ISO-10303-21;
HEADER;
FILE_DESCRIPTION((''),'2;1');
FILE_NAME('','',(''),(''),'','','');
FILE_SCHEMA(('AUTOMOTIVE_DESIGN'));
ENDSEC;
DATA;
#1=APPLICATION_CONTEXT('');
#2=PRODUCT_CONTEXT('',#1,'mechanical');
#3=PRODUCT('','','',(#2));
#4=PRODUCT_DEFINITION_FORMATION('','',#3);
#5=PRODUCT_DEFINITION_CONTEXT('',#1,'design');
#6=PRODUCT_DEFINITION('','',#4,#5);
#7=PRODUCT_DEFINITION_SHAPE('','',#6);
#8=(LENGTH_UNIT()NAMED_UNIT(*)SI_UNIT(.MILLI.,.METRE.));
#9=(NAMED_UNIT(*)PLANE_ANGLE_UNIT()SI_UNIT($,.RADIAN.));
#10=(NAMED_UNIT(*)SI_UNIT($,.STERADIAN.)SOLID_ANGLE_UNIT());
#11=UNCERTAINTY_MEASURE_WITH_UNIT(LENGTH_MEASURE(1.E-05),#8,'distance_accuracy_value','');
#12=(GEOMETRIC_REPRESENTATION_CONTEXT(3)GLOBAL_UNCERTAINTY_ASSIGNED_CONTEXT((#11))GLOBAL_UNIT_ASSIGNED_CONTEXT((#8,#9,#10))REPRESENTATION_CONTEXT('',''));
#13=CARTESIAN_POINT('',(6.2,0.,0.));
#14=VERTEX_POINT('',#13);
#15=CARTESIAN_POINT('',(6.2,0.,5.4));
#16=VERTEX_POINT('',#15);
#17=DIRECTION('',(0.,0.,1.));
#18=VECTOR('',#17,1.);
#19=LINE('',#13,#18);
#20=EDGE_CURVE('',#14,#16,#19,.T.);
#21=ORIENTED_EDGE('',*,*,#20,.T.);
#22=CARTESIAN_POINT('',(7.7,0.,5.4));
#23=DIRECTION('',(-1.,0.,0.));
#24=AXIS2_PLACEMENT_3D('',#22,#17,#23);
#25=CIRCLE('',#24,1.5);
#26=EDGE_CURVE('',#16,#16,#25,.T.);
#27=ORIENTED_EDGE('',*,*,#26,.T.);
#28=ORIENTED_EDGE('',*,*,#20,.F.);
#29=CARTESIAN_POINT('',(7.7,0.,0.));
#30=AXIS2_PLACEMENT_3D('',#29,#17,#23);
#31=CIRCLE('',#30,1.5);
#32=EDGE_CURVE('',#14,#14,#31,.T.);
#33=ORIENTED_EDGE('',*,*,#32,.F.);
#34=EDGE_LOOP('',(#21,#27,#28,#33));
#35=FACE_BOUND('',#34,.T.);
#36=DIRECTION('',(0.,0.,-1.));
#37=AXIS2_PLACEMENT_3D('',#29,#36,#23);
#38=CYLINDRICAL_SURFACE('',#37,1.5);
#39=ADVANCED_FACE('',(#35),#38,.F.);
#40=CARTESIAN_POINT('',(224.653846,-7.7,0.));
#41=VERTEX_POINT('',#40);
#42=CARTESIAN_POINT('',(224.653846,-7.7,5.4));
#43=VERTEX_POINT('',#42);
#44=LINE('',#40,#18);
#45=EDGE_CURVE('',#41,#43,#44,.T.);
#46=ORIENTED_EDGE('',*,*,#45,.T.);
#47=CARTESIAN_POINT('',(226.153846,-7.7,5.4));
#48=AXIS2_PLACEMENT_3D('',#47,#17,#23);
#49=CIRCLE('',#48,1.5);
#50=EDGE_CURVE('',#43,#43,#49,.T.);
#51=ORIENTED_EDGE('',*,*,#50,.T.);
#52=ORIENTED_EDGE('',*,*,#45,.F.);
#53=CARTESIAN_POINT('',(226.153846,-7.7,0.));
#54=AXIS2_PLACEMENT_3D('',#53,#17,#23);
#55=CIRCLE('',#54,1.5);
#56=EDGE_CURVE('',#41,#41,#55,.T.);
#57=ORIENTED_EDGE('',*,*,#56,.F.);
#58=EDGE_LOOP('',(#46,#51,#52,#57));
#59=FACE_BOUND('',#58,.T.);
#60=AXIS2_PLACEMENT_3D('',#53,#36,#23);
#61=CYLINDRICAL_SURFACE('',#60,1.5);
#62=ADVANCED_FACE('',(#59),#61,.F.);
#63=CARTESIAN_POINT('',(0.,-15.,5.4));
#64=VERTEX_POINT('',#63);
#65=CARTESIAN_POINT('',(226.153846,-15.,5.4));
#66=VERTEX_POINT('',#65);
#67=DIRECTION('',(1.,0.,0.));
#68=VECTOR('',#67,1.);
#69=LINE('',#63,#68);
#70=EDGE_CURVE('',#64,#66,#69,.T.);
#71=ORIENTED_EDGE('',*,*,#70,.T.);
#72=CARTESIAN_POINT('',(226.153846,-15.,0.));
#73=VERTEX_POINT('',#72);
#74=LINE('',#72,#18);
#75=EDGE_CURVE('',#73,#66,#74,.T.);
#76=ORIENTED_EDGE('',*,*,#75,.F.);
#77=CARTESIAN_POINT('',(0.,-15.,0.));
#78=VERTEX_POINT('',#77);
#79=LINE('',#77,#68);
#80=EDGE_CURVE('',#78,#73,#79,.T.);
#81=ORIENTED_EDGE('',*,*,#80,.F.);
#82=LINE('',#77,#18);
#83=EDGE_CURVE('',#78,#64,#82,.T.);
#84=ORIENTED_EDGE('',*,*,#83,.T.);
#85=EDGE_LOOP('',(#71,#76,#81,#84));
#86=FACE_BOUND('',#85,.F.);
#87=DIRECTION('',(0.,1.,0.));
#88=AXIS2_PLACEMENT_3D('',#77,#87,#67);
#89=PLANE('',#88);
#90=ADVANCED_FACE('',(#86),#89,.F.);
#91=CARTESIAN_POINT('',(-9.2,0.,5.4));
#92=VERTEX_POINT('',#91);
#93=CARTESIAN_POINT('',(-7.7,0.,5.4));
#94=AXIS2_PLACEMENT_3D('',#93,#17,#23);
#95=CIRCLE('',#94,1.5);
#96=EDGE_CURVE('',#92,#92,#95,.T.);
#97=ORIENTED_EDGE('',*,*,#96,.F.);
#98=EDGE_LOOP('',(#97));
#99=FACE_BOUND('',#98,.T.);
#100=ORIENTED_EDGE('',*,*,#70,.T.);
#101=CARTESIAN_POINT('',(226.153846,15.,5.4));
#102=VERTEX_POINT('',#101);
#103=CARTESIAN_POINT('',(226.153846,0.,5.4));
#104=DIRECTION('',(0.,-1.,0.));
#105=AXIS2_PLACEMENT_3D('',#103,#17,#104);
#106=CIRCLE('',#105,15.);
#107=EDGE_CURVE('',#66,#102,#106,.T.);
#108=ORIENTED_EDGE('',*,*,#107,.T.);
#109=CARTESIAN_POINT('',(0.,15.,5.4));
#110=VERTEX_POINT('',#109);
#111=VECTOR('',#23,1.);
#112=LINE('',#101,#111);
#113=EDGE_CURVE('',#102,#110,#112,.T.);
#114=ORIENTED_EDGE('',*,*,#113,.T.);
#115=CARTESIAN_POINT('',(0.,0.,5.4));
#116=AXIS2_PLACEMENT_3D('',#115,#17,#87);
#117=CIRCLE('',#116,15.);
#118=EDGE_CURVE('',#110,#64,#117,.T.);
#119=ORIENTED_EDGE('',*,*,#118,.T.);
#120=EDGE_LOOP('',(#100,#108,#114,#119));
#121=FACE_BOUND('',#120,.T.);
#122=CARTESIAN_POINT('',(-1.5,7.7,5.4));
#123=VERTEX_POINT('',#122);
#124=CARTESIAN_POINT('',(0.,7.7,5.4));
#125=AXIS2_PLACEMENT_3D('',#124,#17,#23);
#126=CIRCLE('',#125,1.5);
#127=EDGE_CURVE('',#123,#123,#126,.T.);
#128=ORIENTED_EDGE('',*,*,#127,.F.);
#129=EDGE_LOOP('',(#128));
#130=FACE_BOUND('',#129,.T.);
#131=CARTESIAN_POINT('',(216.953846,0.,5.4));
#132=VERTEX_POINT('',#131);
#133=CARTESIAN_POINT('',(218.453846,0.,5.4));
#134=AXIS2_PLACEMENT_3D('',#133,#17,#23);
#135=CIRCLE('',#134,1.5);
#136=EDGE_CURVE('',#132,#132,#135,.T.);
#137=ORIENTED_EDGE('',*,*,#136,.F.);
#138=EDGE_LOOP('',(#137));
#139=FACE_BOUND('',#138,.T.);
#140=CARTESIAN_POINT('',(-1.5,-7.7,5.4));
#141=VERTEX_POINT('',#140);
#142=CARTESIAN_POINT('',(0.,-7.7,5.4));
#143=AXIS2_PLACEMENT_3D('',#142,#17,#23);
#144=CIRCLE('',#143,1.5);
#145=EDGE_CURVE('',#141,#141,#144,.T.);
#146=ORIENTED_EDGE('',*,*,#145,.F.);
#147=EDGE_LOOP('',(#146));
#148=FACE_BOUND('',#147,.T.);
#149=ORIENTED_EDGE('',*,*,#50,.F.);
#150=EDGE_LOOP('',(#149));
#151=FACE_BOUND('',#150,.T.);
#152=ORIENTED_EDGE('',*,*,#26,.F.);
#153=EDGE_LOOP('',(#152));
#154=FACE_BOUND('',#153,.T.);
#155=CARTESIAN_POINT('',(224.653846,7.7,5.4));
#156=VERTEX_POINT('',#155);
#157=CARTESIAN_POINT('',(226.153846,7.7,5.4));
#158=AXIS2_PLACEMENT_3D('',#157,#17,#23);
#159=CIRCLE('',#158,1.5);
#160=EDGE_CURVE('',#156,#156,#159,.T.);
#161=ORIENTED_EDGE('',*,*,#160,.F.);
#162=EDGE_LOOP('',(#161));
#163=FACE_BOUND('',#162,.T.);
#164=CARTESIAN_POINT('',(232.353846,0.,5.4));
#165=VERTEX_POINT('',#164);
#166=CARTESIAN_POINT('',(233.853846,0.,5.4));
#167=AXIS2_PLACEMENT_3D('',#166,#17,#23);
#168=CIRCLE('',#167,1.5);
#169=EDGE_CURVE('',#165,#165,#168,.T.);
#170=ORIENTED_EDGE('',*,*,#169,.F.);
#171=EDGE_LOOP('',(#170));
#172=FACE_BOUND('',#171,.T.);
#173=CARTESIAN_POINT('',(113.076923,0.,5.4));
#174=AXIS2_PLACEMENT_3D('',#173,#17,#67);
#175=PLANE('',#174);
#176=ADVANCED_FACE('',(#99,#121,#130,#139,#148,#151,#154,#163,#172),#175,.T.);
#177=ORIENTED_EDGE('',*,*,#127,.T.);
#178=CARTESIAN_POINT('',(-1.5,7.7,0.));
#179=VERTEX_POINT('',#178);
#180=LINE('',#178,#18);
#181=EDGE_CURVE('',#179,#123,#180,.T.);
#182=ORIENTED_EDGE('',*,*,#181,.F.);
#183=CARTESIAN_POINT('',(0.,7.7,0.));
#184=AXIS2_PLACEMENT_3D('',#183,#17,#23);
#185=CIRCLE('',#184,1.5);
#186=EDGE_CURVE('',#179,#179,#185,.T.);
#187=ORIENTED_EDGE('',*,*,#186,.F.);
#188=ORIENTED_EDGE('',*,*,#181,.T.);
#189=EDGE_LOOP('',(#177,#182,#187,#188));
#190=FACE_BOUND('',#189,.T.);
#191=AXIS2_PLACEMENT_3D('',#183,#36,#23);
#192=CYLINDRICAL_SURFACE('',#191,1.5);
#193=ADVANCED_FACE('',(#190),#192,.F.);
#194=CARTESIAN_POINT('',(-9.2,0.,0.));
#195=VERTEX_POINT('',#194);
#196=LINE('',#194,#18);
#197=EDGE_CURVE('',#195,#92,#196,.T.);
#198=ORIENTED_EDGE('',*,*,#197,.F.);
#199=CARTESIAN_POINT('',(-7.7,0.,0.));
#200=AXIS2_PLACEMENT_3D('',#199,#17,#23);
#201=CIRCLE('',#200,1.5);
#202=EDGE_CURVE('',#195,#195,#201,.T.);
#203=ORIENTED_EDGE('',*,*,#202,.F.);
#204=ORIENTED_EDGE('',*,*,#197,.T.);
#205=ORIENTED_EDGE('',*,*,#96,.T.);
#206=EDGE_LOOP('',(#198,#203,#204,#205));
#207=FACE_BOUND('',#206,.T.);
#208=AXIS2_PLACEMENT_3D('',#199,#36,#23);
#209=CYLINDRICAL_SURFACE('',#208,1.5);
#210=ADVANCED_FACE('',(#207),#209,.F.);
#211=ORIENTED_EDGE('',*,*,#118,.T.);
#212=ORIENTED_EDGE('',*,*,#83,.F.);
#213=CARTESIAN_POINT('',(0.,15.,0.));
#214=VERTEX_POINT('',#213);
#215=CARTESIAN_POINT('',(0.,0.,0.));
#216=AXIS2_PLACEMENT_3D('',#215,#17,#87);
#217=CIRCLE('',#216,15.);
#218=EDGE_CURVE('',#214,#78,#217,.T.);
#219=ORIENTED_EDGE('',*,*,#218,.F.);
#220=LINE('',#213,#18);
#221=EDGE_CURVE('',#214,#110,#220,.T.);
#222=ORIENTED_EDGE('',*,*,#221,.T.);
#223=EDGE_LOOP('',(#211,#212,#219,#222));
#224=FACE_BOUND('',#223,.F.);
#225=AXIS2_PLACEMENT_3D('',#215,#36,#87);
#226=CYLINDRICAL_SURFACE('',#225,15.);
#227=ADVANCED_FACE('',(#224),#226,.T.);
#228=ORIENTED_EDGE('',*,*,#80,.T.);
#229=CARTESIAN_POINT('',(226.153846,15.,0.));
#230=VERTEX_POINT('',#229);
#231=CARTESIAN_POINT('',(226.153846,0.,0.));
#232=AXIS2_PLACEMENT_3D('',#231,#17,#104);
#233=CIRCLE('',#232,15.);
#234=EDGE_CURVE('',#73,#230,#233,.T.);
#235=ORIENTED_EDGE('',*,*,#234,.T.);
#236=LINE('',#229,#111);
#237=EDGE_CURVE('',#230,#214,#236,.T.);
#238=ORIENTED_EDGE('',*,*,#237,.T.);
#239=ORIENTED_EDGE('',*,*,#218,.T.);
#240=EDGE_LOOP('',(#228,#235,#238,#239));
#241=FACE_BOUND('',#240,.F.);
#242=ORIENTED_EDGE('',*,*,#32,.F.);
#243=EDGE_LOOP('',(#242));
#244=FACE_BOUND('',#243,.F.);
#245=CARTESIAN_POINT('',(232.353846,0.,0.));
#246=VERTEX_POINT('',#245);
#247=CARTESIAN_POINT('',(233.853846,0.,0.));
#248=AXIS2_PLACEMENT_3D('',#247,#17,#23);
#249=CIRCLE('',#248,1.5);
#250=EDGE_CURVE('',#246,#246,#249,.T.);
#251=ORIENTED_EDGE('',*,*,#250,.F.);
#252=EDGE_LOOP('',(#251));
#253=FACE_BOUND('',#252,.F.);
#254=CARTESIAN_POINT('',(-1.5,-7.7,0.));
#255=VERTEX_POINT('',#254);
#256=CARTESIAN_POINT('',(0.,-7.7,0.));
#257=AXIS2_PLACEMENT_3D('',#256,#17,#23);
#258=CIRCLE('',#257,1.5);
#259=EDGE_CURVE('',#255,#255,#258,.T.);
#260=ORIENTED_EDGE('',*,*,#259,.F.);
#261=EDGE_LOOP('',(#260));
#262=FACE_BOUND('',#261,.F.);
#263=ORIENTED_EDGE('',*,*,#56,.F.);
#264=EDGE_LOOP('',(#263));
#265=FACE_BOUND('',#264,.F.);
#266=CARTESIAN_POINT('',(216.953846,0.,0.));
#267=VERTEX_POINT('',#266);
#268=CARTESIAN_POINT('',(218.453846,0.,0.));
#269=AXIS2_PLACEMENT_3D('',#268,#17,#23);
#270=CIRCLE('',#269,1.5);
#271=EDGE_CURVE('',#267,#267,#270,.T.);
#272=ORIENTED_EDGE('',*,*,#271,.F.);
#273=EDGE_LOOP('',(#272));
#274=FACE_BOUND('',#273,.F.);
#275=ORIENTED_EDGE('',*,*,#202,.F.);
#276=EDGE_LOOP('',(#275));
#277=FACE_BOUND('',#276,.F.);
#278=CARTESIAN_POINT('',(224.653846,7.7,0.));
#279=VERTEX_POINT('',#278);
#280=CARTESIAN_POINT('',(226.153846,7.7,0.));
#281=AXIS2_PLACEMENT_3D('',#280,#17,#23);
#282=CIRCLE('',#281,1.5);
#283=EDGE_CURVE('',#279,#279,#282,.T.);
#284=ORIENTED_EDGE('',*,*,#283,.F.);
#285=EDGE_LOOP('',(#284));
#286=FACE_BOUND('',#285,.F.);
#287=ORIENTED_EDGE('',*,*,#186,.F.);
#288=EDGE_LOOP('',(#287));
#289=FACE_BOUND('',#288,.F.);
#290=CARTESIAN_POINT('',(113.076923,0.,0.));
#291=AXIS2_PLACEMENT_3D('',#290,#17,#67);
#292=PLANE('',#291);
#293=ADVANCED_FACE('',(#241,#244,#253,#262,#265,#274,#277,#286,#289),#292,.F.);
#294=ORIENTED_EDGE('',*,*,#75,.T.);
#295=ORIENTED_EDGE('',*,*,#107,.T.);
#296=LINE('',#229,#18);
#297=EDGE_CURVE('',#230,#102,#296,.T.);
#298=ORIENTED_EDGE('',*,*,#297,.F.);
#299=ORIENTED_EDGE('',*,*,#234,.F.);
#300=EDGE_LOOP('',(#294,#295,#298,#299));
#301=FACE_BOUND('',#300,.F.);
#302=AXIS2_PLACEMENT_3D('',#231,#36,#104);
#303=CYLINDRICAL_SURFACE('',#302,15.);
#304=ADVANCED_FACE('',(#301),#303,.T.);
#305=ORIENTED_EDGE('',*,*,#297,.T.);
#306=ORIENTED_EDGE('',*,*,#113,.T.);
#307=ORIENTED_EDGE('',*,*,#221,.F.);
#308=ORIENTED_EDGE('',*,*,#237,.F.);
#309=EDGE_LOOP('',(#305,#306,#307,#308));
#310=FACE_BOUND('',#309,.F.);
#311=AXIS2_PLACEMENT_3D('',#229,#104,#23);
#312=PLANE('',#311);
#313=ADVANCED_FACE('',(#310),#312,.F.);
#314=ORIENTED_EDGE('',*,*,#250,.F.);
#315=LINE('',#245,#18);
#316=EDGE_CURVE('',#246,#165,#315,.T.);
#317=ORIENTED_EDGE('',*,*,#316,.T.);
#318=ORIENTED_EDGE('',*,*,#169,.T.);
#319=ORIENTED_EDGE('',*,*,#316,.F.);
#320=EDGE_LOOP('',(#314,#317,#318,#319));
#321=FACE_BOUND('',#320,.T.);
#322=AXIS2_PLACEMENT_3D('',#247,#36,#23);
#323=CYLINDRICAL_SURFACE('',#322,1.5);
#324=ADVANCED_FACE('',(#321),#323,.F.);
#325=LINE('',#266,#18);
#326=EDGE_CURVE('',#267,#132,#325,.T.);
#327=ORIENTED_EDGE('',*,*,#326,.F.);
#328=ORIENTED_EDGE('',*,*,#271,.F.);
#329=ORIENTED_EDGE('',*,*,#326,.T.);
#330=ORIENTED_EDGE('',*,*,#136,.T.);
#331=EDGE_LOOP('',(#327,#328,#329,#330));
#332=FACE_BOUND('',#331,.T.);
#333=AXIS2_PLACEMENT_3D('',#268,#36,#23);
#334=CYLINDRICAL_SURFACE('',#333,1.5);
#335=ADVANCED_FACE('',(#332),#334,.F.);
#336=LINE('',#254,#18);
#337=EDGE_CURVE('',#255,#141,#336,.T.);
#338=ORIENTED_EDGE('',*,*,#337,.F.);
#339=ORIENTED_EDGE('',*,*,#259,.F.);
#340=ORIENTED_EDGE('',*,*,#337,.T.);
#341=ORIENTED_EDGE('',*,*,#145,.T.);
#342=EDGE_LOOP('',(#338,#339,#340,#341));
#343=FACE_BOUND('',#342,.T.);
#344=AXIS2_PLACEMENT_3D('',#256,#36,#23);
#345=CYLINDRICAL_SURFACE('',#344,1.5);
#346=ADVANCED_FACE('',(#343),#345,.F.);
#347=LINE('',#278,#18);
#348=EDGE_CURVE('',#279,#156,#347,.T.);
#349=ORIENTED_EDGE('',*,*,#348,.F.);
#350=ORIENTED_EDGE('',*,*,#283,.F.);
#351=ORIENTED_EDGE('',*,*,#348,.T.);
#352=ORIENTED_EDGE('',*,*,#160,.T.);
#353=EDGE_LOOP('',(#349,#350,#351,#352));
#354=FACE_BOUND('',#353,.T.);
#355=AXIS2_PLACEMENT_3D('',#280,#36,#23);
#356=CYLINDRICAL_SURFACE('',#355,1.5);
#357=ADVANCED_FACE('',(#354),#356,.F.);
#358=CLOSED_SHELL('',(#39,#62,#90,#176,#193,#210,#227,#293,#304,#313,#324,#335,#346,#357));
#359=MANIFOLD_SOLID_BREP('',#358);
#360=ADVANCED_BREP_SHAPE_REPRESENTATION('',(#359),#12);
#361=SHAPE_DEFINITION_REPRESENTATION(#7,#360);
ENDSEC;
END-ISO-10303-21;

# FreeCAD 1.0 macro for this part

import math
import FreeCAD as App
import Part
import Sketcher
from FreeCAD import Vector

doc = App.newDocument("Part")
body = doc.addObject("PartDesign::Body", "Body")

# Sketch on XY plane
sketch1 = doc.addObject("Sketcher::SketchObject", "Sketch")
body.addObject(sketch1)
sketch1.AttachmentSupport = (doc.XY_Plane, [""])
sketch1.MapMode = "FlatFace"
sketch1.addGeometry([
    Part.LineSegment(Vector(0, -15, 0), Vector(226.153846, -15, 0)),  # 0
    Part.ArcOfCircle(Part.Circle(Vector(226.153846, 0, 0), Vector(0, 0, 1), 15), math.radians(-90), math.radians(90)),  # 1
    Part.LineSegment(Vector(226.153846, 15, 0), Vector(0, 15, 0)),  # 2
    Part.ArcOfCircle(Part.Circle(Vector(0, 0, 0), Vector(0, 0, 1), 15), math.radians(90), math.radians(270)),  # 3
    Part.Circle(Vector(0, -7.7, 0), Vector(0, 0, 1), 1.5),  # 4
    Part.Circle(Vector(226.153846, -7.7, 0), Vector(0, 0, 1), 1.5),  # 5
    Part.Circle(Vector(-7.7, 0, 0), Vector(0, 0, 1), 1.5),  # 6
    Part.Circle(Vector(7.7, 0, 0), Vector(0, 0, 1), 1.5),  # 7
    Part.Circle(Vector(0, 7.7, 0), Vector(0, 0, 1), 1.5),  # 8
    Part.Circle(Vector(218.453846, 0, 0), Vector(0, 0, 1), 1.5),  # 9
    Part.Circle(Vector(233.853846, 0, 0), Vector(0, 0, 1), 1.5),  # 10
    Part.Circle(Vector(226.153846, 7.7, 0), Vector(0, 0, 1), 1.5),  # 11
], False)
sketch1.addConstraint([
    Sketcher.Constraint("Tangent", 0, 2, 1, 1),
    Sketcher.Constraint("Tangent", 1, 2, 2, 1),
    Sketcher.Constraint("Tangent", 2, 2, 3, 1),
    Sketcher.Constraint("Tangent", 3, 2, 0, 1),
    Sketcher.Constraint("Horizontal", 0),
    Sketcher.Constraint("Horizontal", 2),
    Sketcher.Constraint("Coincident", 3, 3, -1, 1),
    Sketcher.Constraint("Equal", 4, 5),
    Sketcher.Constraint("Equal", 5, 6),
    Sketcher.Constraint("Equal", 6, 7),
    Sketcher.Constraint("Equal", 7, 8),
    Sketcher.Constraint("Equal", 8, 9),
    Sketcher.Constraint("Equal", 9, 10),
    Sketcher.Constraint("Equal", 10, 11),
    Sketcher.Constraint("Symmetric", 6, 3, 7, 3, -1, 1),
    Sketcher.Constraint("Symmetric", 4, 3, 8, 3, -1, 1),
    Sketcher.Constraint("Symmetric", 5, 3, 11, 3, -1),
    Sketcher.Constraint("PointOnObject", 4, 3, -2),
    Sketcher.Constraint("PointOnObject", 6, 3, -1),
    Sketcher.Constraint("PointOnObject", 9, 3, -1),
    Sketcher.Constraint("PointOnObject", 10, 3, -1),
    Sketcher.Constraint("Horizontal", 4, 3, 5, 3),
    Sketcher.Constraint("Vertical", 1, 3, 5, 3),
    Sketcher.Constraint("Diameter", 4, 3.0),
    Sketcher.Constraint("Radius", 1, 15.0),
    Sketcher.Constraint("DistanceY", 4, 3, -1, 1, 7.7),
    Sketcher.Constraint("DistanceX", 6, 3, -1, 1, 7.7),
    Sketcher.Constraint("DistanceX", 9, 3, 1, 3, 7.7),
    Sketcher.Constraint("DistanceX", 1, 3, 10, 3, 7.7),
    Sketcher.Constraint("DistanceX", 0, 1, 0, 2, 226.153846),
])
pad1 = doc.addObject("PartDesign::Pad", "Pad")
body.addObject(pad1)
pad1.Profile = sketch1
pad1.Length = 5.4

doc.recompute()
